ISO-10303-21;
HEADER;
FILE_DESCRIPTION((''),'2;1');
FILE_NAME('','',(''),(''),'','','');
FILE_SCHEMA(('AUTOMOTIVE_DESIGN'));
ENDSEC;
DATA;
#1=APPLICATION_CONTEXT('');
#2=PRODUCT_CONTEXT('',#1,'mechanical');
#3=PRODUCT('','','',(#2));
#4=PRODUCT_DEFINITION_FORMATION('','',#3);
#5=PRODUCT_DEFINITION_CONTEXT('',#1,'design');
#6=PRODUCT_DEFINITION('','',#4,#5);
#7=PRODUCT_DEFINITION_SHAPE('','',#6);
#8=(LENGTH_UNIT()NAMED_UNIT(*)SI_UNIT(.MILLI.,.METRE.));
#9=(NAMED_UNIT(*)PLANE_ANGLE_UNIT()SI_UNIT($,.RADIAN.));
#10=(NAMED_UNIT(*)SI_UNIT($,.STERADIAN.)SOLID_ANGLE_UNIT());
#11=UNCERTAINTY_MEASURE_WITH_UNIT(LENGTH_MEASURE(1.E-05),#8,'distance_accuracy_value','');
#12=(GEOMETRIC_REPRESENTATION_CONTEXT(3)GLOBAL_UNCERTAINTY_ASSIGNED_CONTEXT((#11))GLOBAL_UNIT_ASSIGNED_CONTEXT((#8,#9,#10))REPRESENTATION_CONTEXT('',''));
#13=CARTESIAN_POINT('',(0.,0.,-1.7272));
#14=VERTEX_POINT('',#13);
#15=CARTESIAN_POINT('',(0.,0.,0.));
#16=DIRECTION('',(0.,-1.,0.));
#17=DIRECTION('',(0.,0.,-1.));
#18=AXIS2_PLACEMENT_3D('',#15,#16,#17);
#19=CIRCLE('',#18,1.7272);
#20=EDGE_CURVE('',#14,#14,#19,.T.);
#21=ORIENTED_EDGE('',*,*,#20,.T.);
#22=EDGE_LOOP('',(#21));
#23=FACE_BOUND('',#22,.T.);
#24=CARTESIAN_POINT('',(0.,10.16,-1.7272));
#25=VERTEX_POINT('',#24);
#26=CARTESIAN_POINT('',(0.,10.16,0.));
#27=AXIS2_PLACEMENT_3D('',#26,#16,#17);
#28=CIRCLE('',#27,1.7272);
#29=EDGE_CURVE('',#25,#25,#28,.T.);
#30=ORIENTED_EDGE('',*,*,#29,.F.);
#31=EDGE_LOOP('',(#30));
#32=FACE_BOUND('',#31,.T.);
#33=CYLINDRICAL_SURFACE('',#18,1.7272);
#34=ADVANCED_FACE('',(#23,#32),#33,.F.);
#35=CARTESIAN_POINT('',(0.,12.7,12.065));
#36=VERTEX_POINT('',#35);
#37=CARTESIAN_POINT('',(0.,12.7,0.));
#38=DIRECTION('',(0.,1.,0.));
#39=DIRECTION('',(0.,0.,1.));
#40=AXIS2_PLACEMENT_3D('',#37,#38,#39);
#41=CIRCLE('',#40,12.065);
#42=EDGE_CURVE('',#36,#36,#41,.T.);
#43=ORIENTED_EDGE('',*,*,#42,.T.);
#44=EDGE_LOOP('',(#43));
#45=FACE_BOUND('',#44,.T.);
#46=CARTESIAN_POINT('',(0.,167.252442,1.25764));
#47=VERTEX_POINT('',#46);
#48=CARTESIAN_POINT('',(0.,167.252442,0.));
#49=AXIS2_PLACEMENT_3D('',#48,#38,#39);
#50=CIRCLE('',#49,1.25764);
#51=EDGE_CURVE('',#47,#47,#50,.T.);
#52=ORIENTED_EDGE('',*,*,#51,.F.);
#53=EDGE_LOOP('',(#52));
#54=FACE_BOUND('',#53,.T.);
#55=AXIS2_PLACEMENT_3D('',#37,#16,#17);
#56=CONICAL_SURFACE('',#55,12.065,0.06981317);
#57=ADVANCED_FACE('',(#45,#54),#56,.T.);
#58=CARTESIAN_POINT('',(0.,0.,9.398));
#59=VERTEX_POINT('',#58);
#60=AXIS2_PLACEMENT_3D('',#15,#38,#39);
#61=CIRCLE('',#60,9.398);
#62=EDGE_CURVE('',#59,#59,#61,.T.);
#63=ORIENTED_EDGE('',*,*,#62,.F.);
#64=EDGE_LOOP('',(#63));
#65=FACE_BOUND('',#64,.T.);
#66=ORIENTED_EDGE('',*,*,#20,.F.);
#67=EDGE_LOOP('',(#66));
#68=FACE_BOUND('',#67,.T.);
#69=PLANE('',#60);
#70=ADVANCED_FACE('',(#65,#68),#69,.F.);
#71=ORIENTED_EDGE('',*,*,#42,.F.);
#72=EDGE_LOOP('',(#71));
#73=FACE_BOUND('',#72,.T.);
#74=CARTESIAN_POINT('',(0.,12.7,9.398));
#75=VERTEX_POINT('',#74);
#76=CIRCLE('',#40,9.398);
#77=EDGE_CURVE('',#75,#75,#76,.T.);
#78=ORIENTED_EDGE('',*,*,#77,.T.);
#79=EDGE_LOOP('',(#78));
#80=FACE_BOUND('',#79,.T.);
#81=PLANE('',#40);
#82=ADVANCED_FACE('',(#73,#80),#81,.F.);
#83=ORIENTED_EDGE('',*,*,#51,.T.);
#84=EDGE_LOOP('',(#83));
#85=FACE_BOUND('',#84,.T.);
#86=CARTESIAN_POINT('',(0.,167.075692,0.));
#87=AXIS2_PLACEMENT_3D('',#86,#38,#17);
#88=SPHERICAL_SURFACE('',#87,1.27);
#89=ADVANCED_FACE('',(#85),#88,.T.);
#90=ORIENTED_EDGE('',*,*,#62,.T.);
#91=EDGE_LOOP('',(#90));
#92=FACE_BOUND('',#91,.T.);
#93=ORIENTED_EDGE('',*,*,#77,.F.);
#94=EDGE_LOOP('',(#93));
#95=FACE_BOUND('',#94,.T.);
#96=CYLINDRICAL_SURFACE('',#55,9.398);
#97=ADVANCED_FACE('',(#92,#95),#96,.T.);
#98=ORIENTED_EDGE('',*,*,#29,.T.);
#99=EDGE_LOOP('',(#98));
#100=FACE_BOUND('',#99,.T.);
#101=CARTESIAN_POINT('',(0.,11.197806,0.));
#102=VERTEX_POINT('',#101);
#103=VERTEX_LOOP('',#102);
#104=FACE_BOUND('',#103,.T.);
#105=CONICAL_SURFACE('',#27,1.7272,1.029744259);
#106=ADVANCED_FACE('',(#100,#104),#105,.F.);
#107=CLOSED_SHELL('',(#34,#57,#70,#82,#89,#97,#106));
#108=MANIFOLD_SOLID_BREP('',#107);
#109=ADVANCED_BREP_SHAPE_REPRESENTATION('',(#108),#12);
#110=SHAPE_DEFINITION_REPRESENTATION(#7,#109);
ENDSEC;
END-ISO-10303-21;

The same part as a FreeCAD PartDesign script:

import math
import FreeCAD as App
import Part
import Sketcher
from FreeCAD import Vector
Q = App.Units.Quantity

doc = App.newDocument("Part")
body = doc.addObject("PartDesign::Body", "Body")

sketch1 = body.newObject("Sketcher::SketchObject", "Sketch")
sketch1.AttachmentSupport = (doc.getObject("XZ_Plane"), [""])
sketch1.MapMode = "FlatFace"
sketch1.addGeometry(Part.Circle(Vector(0, 0, 0), Vector(0, 0, 1), 9), False)
sketch1.addConstraint(Sketcher.Constraint("Coincident", 0, 3, -1, 1))
sketch1.addConstraint(Sketcher.Constraint("Diameter", 0, Q("0.74 in")))
pad1 = body.newObject("PartDesign::Pad", "Pad")
pad1.Profile = sketch1
pad1.Length = Q("0.5 in")
pad1.Reversed = True

sketch2 = body.newObject("Sketcher::SketchObject", "Sketch001")
sketch2.AttachmentSupport = (doc.getObject("YZ_Plane"), [""])
sketch2.MapMode = "FlatFace"
sketch2.addGeometry(Part.LineSegment(Vector(12.7, 0, 0), Vector(12.7, -12.06, 0)), False)
sketch2.addGeometry(Part.LineSegment(Vector(12.7, -12.06, 0), Vector(167.08, -1.27, 0)), False)
sketch2.addGeometry(Part.LineSegment(Vector(167.08, -1.27, 0), Vector(167.25, -1.26, 0)), False)
sketch2.addGeometry(Part.ArcOfCircle(Part.Circle(Vector(167.08, 0, 0), Vector(0, 0, 1), 1.27), math.radians(-82), math.radians(0)), False)
sketch2.addGeometry(Part.LineSegment(Vector(168.35, 0, 0), Vector(12.7, 0, 0)), False)
sketch2.addConstraint(Sketcher.Constraint("Coincident", 0, 2, 1, 1))
sketch2.addConstraint(Sketcher.Constraint("Coincident", 1, 2, 2, 1))
sketch2.addConstraint(Sketcher.Constraint("Coincident", 2, 2, 3, 1))
sketch2.addConstraint(Sketcher.Constraint("Coincident", 3, 2, 4, 1))
sketch2.addConstraint(Sketcher.Constraint("Coincident", 4, 2, 0, 1))
sketch2.addConstraint(Sketcher.Constraint("Vertical", 0))
sketch2.addConstraint(Sketcher.Constraint("Horizontal", 4))
sketch2.addConstraint(Sketcher.Constraint("PointOnObject", 3, 3, -1))
sketch2.addConstraint(Sketcher.Constraint("PointOnObject", 3, 2, -1))
sketch2.addConstraint(Sketcher.Constraint("Parallel", 1, 2))
sketch2.addConstraint(Sketcher.Constraint("Vertical", 3, 3, 1, 2))
sketch2.addConstraint(Sketcher.Constraint("Radius", 3, Q("0.05 in")))
sketch2.addConstraint(Sketcher.Constraint("Angle", 1, Q("4 deg")))
sketch2.addConstraint(Sketcher.Constraint("DistanceX", -1, 1, 0, 2, Q("0.5 in")))
sketch2.addConstraint(Sketcher.Constraint("DistanceY", 0, 2, 0, 1, Q("0.475 in")))
sketch2.addConstraint(Sketcher.Constraint("DistanceY", 1, 2, -1, 1, Q("0.05 in")))
revolution = body.newObject("PartDesign::Revolution", "Revolution")
revolution.Profile = sketch2
revolution.ReferenceAxis = (sketch2, ["H_Axis"])
revolution.Angle = 360

sketch3 = body.newObject("Sketcher::SketchObject", "Sketch002")
sketch3.AttachmentSupport = (doc.getObject("XZ_Plane"), [""])
sketch3.MapMode = "FlatFace"
sketch3.addGeometry(Part.Circle(Vector(0, 0, 0), Vector(0, 0, 1), 1.7), False)
sketch3.addConstraint(Sketcher.Constraint("Coincident", 0, 3, -1, 1))
sketch3.addConstraint(Sketcher.Constraint("Diameter", 0, Q("0.136 in")))
doc.recompute()
hole = body.newObject("PartDesign::Hole", "Hole")
hole.Profile = sketch3
hole.ThreadType = "None"
hole.Diameter = Q("0.136 in")
hole.DepthType = "Dimension"
hole.Depth = Q("0.4 in")
hole.DrillPoint = "Angled"
hole.DrillPointAngle = 118

doc.recompute()
